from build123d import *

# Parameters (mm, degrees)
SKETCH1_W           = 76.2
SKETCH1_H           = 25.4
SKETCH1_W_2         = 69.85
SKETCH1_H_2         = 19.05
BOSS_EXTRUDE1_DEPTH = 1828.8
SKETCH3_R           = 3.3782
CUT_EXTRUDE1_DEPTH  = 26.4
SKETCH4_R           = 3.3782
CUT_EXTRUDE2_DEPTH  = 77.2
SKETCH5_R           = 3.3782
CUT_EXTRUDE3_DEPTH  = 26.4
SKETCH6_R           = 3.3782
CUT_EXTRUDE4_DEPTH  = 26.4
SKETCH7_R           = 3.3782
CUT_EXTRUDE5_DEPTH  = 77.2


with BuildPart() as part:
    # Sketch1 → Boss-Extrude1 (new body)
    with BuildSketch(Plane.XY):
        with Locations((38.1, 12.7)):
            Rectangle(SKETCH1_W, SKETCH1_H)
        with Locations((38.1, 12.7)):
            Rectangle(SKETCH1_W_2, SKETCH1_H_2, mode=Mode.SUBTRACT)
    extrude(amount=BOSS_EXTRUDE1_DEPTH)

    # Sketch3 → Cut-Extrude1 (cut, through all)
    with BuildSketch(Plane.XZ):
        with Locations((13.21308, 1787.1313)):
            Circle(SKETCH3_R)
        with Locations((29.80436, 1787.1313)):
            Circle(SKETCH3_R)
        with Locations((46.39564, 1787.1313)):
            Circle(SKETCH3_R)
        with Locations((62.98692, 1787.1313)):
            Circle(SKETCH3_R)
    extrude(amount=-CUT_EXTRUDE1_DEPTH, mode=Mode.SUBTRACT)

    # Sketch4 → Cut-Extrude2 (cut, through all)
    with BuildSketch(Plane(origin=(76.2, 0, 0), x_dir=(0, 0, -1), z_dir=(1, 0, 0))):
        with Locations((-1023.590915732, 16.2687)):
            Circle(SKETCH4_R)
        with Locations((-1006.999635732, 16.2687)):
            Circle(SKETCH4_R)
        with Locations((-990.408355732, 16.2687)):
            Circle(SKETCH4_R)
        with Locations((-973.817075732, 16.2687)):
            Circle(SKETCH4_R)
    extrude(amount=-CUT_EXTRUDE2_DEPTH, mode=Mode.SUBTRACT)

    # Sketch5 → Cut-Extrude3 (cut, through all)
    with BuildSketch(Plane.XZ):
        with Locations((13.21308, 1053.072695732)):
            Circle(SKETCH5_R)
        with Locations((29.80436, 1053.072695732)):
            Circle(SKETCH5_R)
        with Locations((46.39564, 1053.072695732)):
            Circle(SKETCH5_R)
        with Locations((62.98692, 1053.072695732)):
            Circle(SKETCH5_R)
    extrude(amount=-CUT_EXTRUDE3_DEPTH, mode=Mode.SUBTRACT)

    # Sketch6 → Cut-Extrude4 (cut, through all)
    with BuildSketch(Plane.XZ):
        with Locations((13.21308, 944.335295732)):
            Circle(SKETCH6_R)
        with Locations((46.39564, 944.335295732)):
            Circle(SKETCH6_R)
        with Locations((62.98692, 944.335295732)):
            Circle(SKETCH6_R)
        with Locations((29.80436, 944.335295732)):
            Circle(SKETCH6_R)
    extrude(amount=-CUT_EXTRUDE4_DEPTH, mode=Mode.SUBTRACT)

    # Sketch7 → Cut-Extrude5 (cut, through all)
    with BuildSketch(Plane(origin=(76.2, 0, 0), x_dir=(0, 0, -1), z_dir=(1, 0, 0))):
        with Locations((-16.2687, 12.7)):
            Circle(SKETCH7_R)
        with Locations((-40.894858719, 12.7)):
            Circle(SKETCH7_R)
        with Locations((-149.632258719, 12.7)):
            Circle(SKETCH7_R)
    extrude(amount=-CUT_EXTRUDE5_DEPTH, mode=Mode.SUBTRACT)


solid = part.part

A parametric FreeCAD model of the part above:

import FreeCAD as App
import Part
import Sketcher
Q = App.Units.Quantity


def add_polygon(sketch, points):
    """Adds a closed chain of lines whose ends are joined by coincident constraints."""
    first, n = sketch.GeometryCount, len(points)
    for a, b in zip(points, points[1:] + points[:1]):
        sketch.addGeometry(Part.LineSegment(App.Vector(*a, 0), App.Vector(*b, 0)), False)
    for i in range(n):
        sketch.addConstraint(Sketcher.Constraint("Coincident", first + i, 2, first + (i + 1) % n, 1))

doc = App.newDocument("Part")
body = doc.addObject("PartDesign::Body", "Body")

# Sketch on XY plane
sketch1 = body.newObject("Sketcher::SketchObject", "Sketch")
sketch1.AttachmentSupport = (doc.getObject("XY_Plane"), [""])
sketch1.MapMode = "FlatFace"
add_polygon(sketch1, [(0, 25), (0, 0), (76, 0), (76, 25)])  # lines 0-3
add_polygon(sketch1, [(73, 3), (3, 3), (3, 22), (73, 22)])  # lines 4-7
sketch1.addConstraint(Sketcher.Constraint("Vertical", 0))
sketch1.addConstraint(Sketcher.Constraint("Horizontal", 1))
sketch1.addConstraint(Sketcher.Constraint("Vertical", 2))
sketch1.addConstraint(Sketcher.Constraint("Horizontal", 3))
sketch1.addConstraint(Sketcher.Constraint("Horizontal", 4))
sketch1.addConstraint(Sketcher.Constraint("Vertical", 5))
sketch1.addConstraint(Sketcher.Constraint("Horizontal", 6))
sketch1.addConstraint(Sketcher.Constraint("Vertical", 7))
sketch1.addConstraint(Sketcher.Constraint("Coincident", 0, 2, -1, 1))
sketch1.addConstraint(Sketcher.Constraint("DistanceX", 1, 1, 1, 2, Q("3 in")))
sketch1.addConstraint(Sketcher.Constraint("DistanceY", 0, 2, 0, 1, Q("1 in")))
sketch1.addConstraint(Sketcher.Constraint("DistanceX", 4, 2, 4, 1, Q("2.75 in")))
sketch1.addConstraint(Sketcher.Constraint("DistanceY", 5, 1, 5, 2, Q("0.75 in")))
sketch1.addConstraint(Sketcher.Constraint("DistanceX", -1, 1, 4, 2, Q("0.125 in")))
sketch1.addConstraint(Sketcher.Constraint("DistanceY", -1, 1, 4, 2, Q("0.125 in")))
pad1 = body.newObject("PartDesign::Pad", "Pad")
pad1.Profile = sketch1
pad1.Length = Q("72 in")

# Sketch on XZ plane
sketch2 = body.newObject("Sketcher::SketchObject", "Sketch001")
sketch2.AttachmentSupport = (doc.getObject("XZ_Plane"), [""])
sketch2.MapMode = "FlatFace"
sketch2.addGeometry(Part.Circle(App.Vector(13.2, 1787.1, 0), App.Vector(0, 0, 1), 3.4), False)
sketch2.addGeometry(Part.Circle(App.Vector(29.8, 1787.1, 0), App.Vector(0, 0, 1), 3.4), False)
sketch2.addGeometry(Part.Circle(App.Vector(46.4, 1787.1, 0), App.Vector(0, 0, 1), 3.4), False)
sketch2.addGeometry(Part.Circle(App.Vector(63, 1787.1, 0), App.Vector(0, 0, 1), 3.4), False)
sketch2.addConstraint(Sketcher.Constraint("Equal", 0, 1))
sketch2.addConstraint(Sketcher.Constraint("Equal", 1, 2))
sketch2.addConstraint(Sketcher.Constraint("Equal", 2, 3))
sketch2.addConstraint(Sketcher.Constraint("Horizontal", 0, 3, 1, 3))
sketch2.addConstraint(Sketcher.Constraint("Horizontal", 1, 3, 2, 3))
sketch2.addConstraint(Sketcher.Constraint("Horizontal", 2, 3, 3, 3))
sketch2.addConstraint(Sketcher.Constraint("Diameter", 0, Q("0.266 in")))
sketch2.addConstraint(Sketcher.Constraint("DistanceX", -1, 1, 0, 3, Q("0.5202 in")))
sketch2.addConstraint(Sketcher.Constraint("DistanceY", -1, 1, 0, 3, Q("70.3595 in")))
sketch2.addConstraint(Sketcher.Constraint("DistanceX", -1, 1, 1, 3, Q("1.1734 in")))
sketch2.addConstraint(Sketcher.Constraint("DistanceX", -1, 1, 2, 3, Q("1.8266 in")))
sketch2.addConstraint(Sketcher.Constraint("DistanceX", -1, 1, 3, 3, Q("2.4798 in")))
pocket1 = body.newObject("PartDesign::Pocket", "Pocket")
pocket1.Profile = sketch2
pocket1.Type = "ThroughAll"

# Sketch on YZ plane
sketch3 = body.newObject("Sketcher::SketchObject", "Sketch002")
sketch3.AttachmentSupport = (doc.getObject("YZ_Plane"), [""])
sketch3.MapMode = "FlatFace"
sketch3.AttachmentOffset = App.Placement(App.Vector(0, 0, 3 * 25.4), App.Rotation())
sketch3.addGeometry(Part.Circle(App.Vector(16.3, 1023.6, 0), App.Vector(0, 0, 1), 3.4), False)
sketch3.addGeometry(Part.Circle(App.Vector(16.3, 1007, 0), App.Vector(0, 0, 1), 3.4), False)
sketch3.addGeometry(Part.Circle(App.Vector(16.3, 990.4, 0), App.Vector(0, 0, 1), 3.4), False)
sketch3.addGeometry(Part.Circle(App.Vector(16.3, 973.8, 0), App.Vector(0, 0, 1), 3.4), False)
sketch3.addConstraint(Sketcher.Constraint("Equal", 0, 1))
sketch3.addConstraint(Sketcher.Constraint("Equal", 1, 2))
sketch3.addConstraint(Sketcher.Constraint("Equal", 2, 3))
sketch3.addConstraint(Sketcher.Constraint("Vertical", 0, 3, 1, 3))
sketch3.addConstraint(Sketcher.Constraint("Vertical", 1, 3, 2, 3))
sketch3.addConstraint(Sketcher.Constraint("Vertical", 2, 3, 3, 3))
sketch3.addConstraint(Sketcher.Constraint("Diameter", 0, Q("0.266 in")))
sketch3.addConstraint(Sketcher.Constraint("DistanceX", -1, 1, 0, 3, Q("0.6405 in")))
sketch3.addConstraint(Sketcher.Constraint("DistanceY", 1, 3, 0, 3, Q("0.6532 in")))
sketch3.addConstraint(Sketcher.Constraint("DistanceY", 2, 3, 1, 3, Q("0.6532 in")))
sketch3.addConstraint(Sketcher.Constraint("DistanceY", 3, 3, 2, 3, Q("0.6532 in")))
sketch3.addConstraint(Sketcher.Constraint("DistanceY", -1, 1, 0, 3, Q("1023.590916 mm")))
pocket2 = body.newObject("PartDesign::Pocket", "Pocket001")
pocket2.Profile = sketch3
pocket2.Type = "ThroughAll"

# Sketch on XZ plane
sketch4 = body.newObject("Sketcher::SketchObject", "Sketch003")
sketch4.AttachmentSupport = (doc.getObject("XZ_Plane"), [""])
sketch4.MapMode = "FlatFace"
sketch4.addGeometry(Part.Circle(App.Vector(13.2, 1053.1, 0), App.Vector(0, 0, 1), 3.4), False)
sketch4.addGeometry(Part.Circle(App.Vector(29.8, 1053.1, 0), App.Vector(0, 0, 1), 3.4), False)
sketch4.addGeometry(Part.Circle(App.Vector(46.4, 1053.1, 0), App.Vector(0, 0, 1), 3.4), False)
sketch4.addGeometry(Part.Circle(App.Vector(63, 1053.1, 0), App.Vector(0, 0, 1), 3.4), False)
sketch4.addConstraint(Sketcher.Constraint("Equal", 0, 1))
sketch4.addConstraint(Sketcher.Constraint("Equal", 1, 2))
sketch4.addConstraint(Sketcher.Constraint("Equal", 2, 3))
sketch4.addConstraint(Sketcher.Constraint("Horizontal", 0, 3, 1, 3))
sketch4.addConstraint(Sketcher.Constraint("Horizontal", 1, 3, 2, 3))
sketch4.addConstraint(Sketcher.Constraint("Horizontal", 2, 3, 3, 3))
sketch4.addConstraint(Sketcher.Constraint("Diameter", 0, Q("0.266 in")))
sketch4.addConstraint(Sketcher.Constraint("DistanceX", -1, 1, 0, 3, Q("0.5202 in")))
sketch4.addConstraint(Sketcher.Constraint("DistanceX", -1, 1, 1, 3, Q("1.1734 in")))
sketch4.addConstraint(Sketcher.Constraint("DistanceX", -1, 1, 2, 3, Q("1.8266 in")))
sketch4.addConstraint(Sketcher.Constraint("DistanceX", -1, 1, 3, 3, Q("2.4798 in")))
sketch4.addConstraint(Sketcher.Constraint("DistanceY", -1, 1, 0, 3, Q("1053.072696 mm")))
pocket3 = body.newObject("PartDesign::Pocket", "Pocket002")
pocket3.Profile = sketch4
pocket3.Type = "ThroughAll"

# Sketch on XZ plane
sketch5 = body.newObject("Sketcher::SketchObject", "Sketch004")
sketch5.AttachmentSupport = (doc.getObject("XZ_Plane"), [""])
sketch5.MapMode = "FlatFace"
sketch5.addGeometry(Part.Circle(App.Vector(13.2, 944.3, 0), App.Vector(0, 0, 1), 3.4), False)
sketch5.addGeometry(Part.Circle(App.Vector(46.4, 944.3, 0), App.Vector(0, 0, 1), 3.4), False)
sketch5.addGeometry(Part.Circle(App.Vector(63, 944.3, 0), App.Vector(0, 0, 1), 3.4), False)
sketch5.addGeometry(Part.Circle(App.Vector(29.8, 944.3, 0), App.Vector(0, 0, 1), 3.4), False)
sketch5.addConstraint(Sketcher.Constraint("Equal", 0, 1))
sketch5.addConstraint(Sketcher.Constraint("Equal", 1, 2))
sketch5.addConstraint(Sketcher.Constraint("Equal", 2, 3))
sketch5.addConstraint(Sketcher.Constraint("Horizontal", 0, 3, 1, 3))
sketch5.addConstraint(Sketcher.Constraint("Horizontal", 1, 3, 2, 3))
sketch5.addConstraint(Sketcher.Constraint("Horizontal", 2, 3, 3, 3))
sketch5.addConstraint(Sketcher.Constraint("Diameter", 0, Q("0.266 in")))
sketch5.addConstraint(Sketcher.Constraint("DistanceX", -1, 1, 0, 3, Q("0.5202 in")))
sketch5.addConstraint(Sketcher.Constraint("DistanceX", -1, 1, 1, 3, Q("1.8266 in")))
sketch5.addConstraint(Sketcher.Constraint("DistanceX", -1, 1, 2, 3, Q("2.4798 in")))
sketch5.addConstraint(Sketcher.Constraint("DistanceX", -1, 1, 3, 3, Q("1.1734 in")))
sketch5.addConstraint(Sketcher.Constraint("DistanceY", -1, 1, 0, 3, Q("944.335296 mm")))
pocket4 = body.newObject("PartDesign::Pocket", "Pocket003")
pocket4.Profile = sketch5
pocket4.Type = "ThroughAll"

# Sketch on YZ plane
sketch6 = body.newObject("Sketcher::SketchObject", "Sketch005")
sketch6.AttachmentSupport = (doc.getObject("YZ_Plane"), [""])
sketch6.MapMode = "FlatFace"
sketch6.AttachmentOffset = App.Placement(App.Vector(0, 0, 3 * 25.4), App.Rotation())
sketch6.addGeometry(Part.Circle(App.Vector(12.7, 16.3, 0), App.Vector(0, 0, 1), 3.4), False)
sketch6.addGeometry(Part.Circle(App.Vector(12.7, 40.9, 0), App.Vector(0, 0, 1), 3.4), False)
sketch6.addGeometry(Part.Circle(App.Vector(12.7, 149.6, 0), App.Vector(0, 0, 1), 3.4), False)
sketch6.addConstraint(Sketcher.Constraint("Equal", 0, 1))
sketch6.addConstraint(Sketcher.Constraint("Equal", 1, 2))
sketch6.addConstraint(Sketcher.Constraint("Vertical", 0, 3, 1, 3))
sketch6.addConstraint(Sketcher.Constraint("Vertical", 1, 3, 2, 3))
sketch6.addConstraint(Sketcher.Constraint("Diameter", 0, Q("0.266 in")))
sketch6.addConstraint(Sketcher.Constraint("DistanceX", -1, 1, 0, 3, Q("0.5 in")))
sketch6.addConstraint(Sketcher.Constraint("DistanceY", 1, 3, 2, 3, Q("4.281 in")))
sketch6.addConstraint(Sketcher.Constraint("DistanceY", -1, 1, 0, 3, Q("0.6405 in")))
sketch6.addConstraint(Sketcher.Constraint("DistanceY", -1, 1, 1, 3, Q("40.894859 mm")))
pocket5 = body.newObject("PartDesign::Pocket", "Pocket004")
pocket5.Profile = sketch6
pocket5.Type = "ThroughAll"

doc.recompute()
